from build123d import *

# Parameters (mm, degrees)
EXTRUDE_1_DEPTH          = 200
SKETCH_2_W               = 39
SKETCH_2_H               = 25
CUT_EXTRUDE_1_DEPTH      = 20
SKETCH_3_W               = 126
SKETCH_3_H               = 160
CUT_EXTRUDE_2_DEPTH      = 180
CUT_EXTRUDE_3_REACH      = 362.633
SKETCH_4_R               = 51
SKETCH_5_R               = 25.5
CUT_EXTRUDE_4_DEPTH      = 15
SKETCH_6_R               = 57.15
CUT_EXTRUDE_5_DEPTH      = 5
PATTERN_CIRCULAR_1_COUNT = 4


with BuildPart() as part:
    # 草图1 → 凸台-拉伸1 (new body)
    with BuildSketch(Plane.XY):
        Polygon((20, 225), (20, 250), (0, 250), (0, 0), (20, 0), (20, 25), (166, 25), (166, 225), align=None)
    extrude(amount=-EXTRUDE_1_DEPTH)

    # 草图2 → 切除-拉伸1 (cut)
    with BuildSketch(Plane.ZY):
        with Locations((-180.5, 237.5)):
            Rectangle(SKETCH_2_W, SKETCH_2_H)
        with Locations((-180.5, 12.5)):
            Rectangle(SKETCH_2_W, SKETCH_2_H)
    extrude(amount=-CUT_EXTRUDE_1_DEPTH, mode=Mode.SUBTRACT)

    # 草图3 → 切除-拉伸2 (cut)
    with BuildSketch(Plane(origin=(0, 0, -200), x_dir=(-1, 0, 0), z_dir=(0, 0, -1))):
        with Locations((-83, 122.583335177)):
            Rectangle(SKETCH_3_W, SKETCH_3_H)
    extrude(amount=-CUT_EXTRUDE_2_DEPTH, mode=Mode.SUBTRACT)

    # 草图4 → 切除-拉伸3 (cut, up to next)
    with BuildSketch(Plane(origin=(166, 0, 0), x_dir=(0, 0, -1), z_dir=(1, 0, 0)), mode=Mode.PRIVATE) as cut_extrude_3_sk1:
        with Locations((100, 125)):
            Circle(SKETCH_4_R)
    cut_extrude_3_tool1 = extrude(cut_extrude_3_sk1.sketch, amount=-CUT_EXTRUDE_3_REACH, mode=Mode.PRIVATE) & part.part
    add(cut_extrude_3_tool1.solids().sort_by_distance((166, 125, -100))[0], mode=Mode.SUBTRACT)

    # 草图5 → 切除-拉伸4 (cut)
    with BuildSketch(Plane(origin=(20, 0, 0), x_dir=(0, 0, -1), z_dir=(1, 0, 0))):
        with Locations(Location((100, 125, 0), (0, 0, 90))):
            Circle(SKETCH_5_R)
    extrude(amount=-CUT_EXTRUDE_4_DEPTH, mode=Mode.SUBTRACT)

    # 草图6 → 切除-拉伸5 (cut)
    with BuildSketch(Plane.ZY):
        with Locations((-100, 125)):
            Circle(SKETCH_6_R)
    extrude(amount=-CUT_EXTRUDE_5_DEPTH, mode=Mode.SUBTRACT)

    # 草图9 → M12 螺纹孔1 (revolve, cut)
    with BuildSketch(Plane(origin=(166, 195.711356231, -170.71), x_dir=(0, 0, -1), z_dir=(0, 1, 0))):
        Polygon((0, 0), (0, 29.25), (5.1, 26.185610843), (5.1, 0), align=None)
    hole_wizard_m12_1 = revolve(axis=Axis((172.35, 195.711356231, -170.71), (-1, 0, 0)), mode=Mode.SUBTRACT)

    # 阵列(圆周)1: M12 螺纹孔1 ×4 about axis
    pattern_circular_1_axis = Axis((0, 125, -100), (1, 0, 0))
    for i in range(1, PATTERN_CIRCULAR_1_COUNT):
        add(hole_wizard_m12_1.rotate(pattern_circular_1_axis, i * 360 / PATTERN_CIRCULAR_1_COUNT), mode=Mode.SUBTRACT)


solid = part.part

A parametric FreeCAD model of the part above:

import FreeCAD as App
import Part
import Sketcher

V = App.Vector
Q = App.Units.Quantity


def add_polygon(sketch, points):
    """Adds a closed chain of lines whose ends are joined by coincident constraints."""
    first, n = sketch.GeometryCount, len(points)
    for a, b in zip(points, points[1:] + points[:1]):
        sketch.addGeometry(Part.LineSegment(App.Vector(*a, 0), App.Vector(*b, 0)), False)
    for i in range(n):
        sketch.addConstraint(Sketcher.Constraint("Coincident", first + i, 2, first + (i + 1) % n, 1))

doc = App.newDocument("Part")
body = doc.addObject("PartDesign::Body", "Body")

# Sketch on XY plane
sketch1 = body.newObject("Sketcher::SketchObject", "Sketch")
sketch1.AttachmentSupport = (doc.getObject("XY_Plane"), [""])
sketch1.MapMode = "FlatFace"
add_polygon(sketch1, [(20, 225), (20, 250), (0, 250), (0, 0), (20, 0), (20, 25), (166, 25), (166, 225)])  # lines 0-7
sketch1.addConstraint([
    Sketcher.Constraint("Vertical", 0),
    Sketcher.Constraint("Horizontal", 1),
    Sketcher.Constraint("Vertical", 2),
    Sketcher.Constraint("Horizontal", 3),
    Sketcher.Constraint("Vertical", 4),
    Sketcher.Constraint("Horizontal", 5),
    Sketcher.Constraint("Vertical", 6),
    Sketcher.Constraint("Horizontal", 7),
    Sketcher.Constraint("Coincident", 2, 2, -1, 1),
    Sketcher.Constraint("Vertical", 0, 2, 3, 2),
    Sketcher.Constraint("Equal", 0, 4),
    Sketcher.Constraint("DistanceX", 1, 2, 1, 1, Q("20 mm")),
    Sketcher.Constraint("DistanceX", 5, 1, 5, 2, Q("146 mm")),
    Sketcher.Constraint("DistanceY", 0, 1, 0, 2, Q("25 mm")),
    Sketcher.Constraint("DistanceY", 2, 2, 2, 1, Q("250 mm")),
])
pad1 = body.newObject("PartDesign::Pad", "Pad")
pad1.Profile = sketch1
pad1.Length = 200
pad1.Reversed = True

# Sketch on YZ plane
sketch2 = body.newObject("Sketcher::SketchObject", "Sketch001")
sketch2.AttachmentSupport = (doc.getObject("YZ_Plane"), [""])
sketch2.MapMode = "FlatFace"
add_polygon(sketch2, [(250, -200), (225, -200), (225, -161), (250, -161)])  # lines 0-3
add_polygon(sketch2, [(25, -200), (0, -200), (0, -161), (25, -161)])  # lines 4-7
sketch2.addConstraint([
    Sketcher.Constraint("Horizontal", 0),
    Sketcher.Constraint("Vertical", 1),
    Sketcher.Constraint("Horizontal", 2),
    Sketcher.Constraint("Vertical", 3),
    Sketcher.Constraint("Horizontal", 4),
    Sketcher.Constraint("Vertical", 5),
    Sketcher.Constraint("Horizontal", 6),
    Sketcher.Constraint("Vertical", 7),
    Sketcher.Constraint("PointOnObject", 4, 2, -2),
    Sketcher.Constraint("Horizontal", 3, 2, 4, 2),
    Sketcher.Constraint("Horizontal", 2, 2, 5, 2),
    Sketcher.Constraint("Equal", 2, 4),
    Sketcher.Constraint("DistanceX", 0, 2, 0, 1, Q("25 mm")),
    Sketcher.Constraint("DistanceY", 1, 1, 1, 2, Q("39 mm")),
    Sketcher.Constraint("DistanceX", -1, 1, 0, 2, Q("225 mm")),
    Sketcher.Constraint("DistanceY", 0, 2, -1, 1, Q("200 mm")),
])
pocket1 = body.newObject("PartDesign::Pocket", "Pocket")
pocket1.Profile = sketch2
pocket1.Length = 20
pocket1.Reversed = True

# Sketch on XY plane
sketch3 = body.newObject("Sketcher::SketchObject", "Sketch002")
sketch3.AttachmentSupport = (doc.getObject("XY_Plane"), [""])
sketch3.MapMode = "FlatFace"
sketch3.AttachmentOffset = App.Placement(V(0, 0, -200), App.Rotation())
add_polygon(sketch3, [(146, 202.583335), (146, 42.583335), (20, 42.583335), (20, 202.583335)])  # lines 0-3
sketch3.addConstraint([
    Sketcher.Constraint("Vertical", 0),
    Sketcher.Constraint("Horizontal", 1),
    Sketcher.Constraint("Vertical", 2),
    Sketcher.Constraint("Horizontal", 3),
    Sketcher.Constraint("DistanceX", 1, 2, 1, 1, Q("126 mm")),
    Sketcher.Constraint("DistanceY", 0, 2, 0, 1, Q("160 mm")),
    Sketcher.Constraint("DistanceX", -1, 1, 0, 2, Q("146 mm")),
    Sketcher.Constraint("DistanceY", -1, 1, 0, 2, Q("42.583335 mm")),
])
pocket2 = body.newObject("PartDesign::Pocket", "Pocket001")
pocket2.Profile = sketch3
pocket2.Length = 180
pocket2.Reversed = True

# Sketch on YZ plane
sketch4 = body.newObject("Sketcher::SketchObject", "Sketch003")
sketch4.AttachmentSupport = (doc.getObject("YZ_Plane"), [""])
sketch4.MapMode = "FlatFace"
sketch4.AttachmentOffset = App.Placement(V(0, 0, 166), App.Rotation())
sketch4.addGeometry(Part.Circle(V(125, -100, 0), V(0, 0, 1), 51), False)
sketch4.addConstraint([
    Sketcher.Constraint("Diameter", 0, Q("102 mm")),
    Sketcher.Constraint("DistanceX", -1, 1, 0, 3, Q("125 mm")),
    Sketcher.Constraint("DistanceY", 0, 3, -1, 1, Q("100 mm")),
])
pocket3 = body.newObject("PartDesign::Pocket", "Pocket002")
pocket3.Profile = sketch4
pocket3.Type = "UpToFirst"

# Sketch on YZ plane
sketch5 = body.newObject("Sketcher::SketchObject", "Sketch004")
sketch5.AttachmentSupport = (doc.getObject("YZ_Plane"), [""])
sketch5.MapMode = "FlatFace"
sketch5.AttachmentOffset = App.Placement(V(0, 0, 20), App.Rotation())
sketch5.addGeometry(Part.Circle(V(125, -100, 0), V(0, 0, 1), 25.5), False)
sketch5.addConstraint([
    Sketcher.Constraint("Diameter", 0, Q("51 mm")),
    Sketcher.Constraint("DistanceX", -1, 1, 0, 3, Q("125 mm")),
    Sketcher.Constraint("DistanceY", 0, 3, -1, 1, Q("100 mm")),
])
pocket4 = body.newObject("PartDesign::Pocket", "Pocket003")
pocket4.Profile = sketch5
pocket4.Length = 15

# Sketch on YZ plane
sketch6 = body.newObject("Sketcher::SketchObject", "Sketch005")
sketch6.AttachmentSupport = (doc.getObject("YZ_Plane"), [""])
sketch6.MapMode = "FlatFace"
sketch6.addGeometry(Part.Circle(V(125, -100, 0), V(0, 0, 1), 57.15), False)
sketch6.addConstraint([
    Sketcher.Constraint("Diameter", 0, Q("114.3 mm")),
    Sketcher.Constraint("DistanceX", -1, 1, 0, 3, Q("125 mm")),
    Sketcher.Constraint("DistanceY", 0, 3, -1, 1, Q("100 mm")),
])
pocket5 = body.newObject("PartDesign::Pocket", "Pocket004")
pocket5.Profile = sketch6
pocket5.Length = 5
pocket5.Reversed = True

# Sketch on XZ plane
sketch7 = body.newObject("Sketcher::SketchObject", "Sketch006")
sketch7.AttachmentSupport = (doc.getObject("XZ_Plane"), [""])
sketch7.MapMode = "FlatFace"
sketch7.AttachmentOffset = App.Placement(V(0, 0, -195.711356), App.Rotation())
add_polygon(sketch7, [(136.75, -170.71), (166, -170.71), (166, -175.81), (139.814389, -175.81)])  # lines 0-3
sketch7.addGeometry(Part.LineSegment(V(166, -170.71, 0), V(136.75, -170.71, 0)), True)  # axis
sketch7.addConstraint([
    Sketcher.Constraint("Horizontal", 0),
    Sketcher.Constraint("Vertical", 1),
    Sketcher.Constraint("Horizontal", 2),
    Sketcher.Constraint("Horizontal", 4),
    Sketcher.Constraint("Coincident", 4, 1, 0, 2),
    Sketcher.Constraint("Equal", 0, 4),
    Sketcher.Constraint("Angle", 3, Q("121 deg")),
    Sketcher.Constraint("DistanceY", 1, 2, 1, 1, Q("5.1 mm")),
    Sketcher.Constraint("DistanceX", -1, 1, 0, 2, Q("166 mm")),
    Sketcher.Constraint("DistanceX", 0, 1, 0, 2, Q("29.25 mm")),
    Sketcher.Constraint("DistanceY", 0, 2, -1, 1, Q("170.71 mm")),
])
groove = body.newObject("PartDesign::Groove", "Groove")
groove.Profile = sketch7
groove.ReferenceAxis = (sketch7, ["Axis0"])
groove.Angle = 360
doc.recompute()

datumline = body.newObject("PartDesign::Line", "DatumLine")
datumline.Placement = App.Placement(V(0, 125, -100), App.Rotation(V(0, 0, 1), V(1, 0, 0)))
polarpattern = body.newObject("PartDesign::PolarPattern", "PolarPattern")
polarpattern.Originals = [groove]
polarpattern.Axis = (datumline, [""])
polarpattern.Angle = 360
polarpattern.Occurrences = 4
body.Tip = polarpattern

doc.recompute()
